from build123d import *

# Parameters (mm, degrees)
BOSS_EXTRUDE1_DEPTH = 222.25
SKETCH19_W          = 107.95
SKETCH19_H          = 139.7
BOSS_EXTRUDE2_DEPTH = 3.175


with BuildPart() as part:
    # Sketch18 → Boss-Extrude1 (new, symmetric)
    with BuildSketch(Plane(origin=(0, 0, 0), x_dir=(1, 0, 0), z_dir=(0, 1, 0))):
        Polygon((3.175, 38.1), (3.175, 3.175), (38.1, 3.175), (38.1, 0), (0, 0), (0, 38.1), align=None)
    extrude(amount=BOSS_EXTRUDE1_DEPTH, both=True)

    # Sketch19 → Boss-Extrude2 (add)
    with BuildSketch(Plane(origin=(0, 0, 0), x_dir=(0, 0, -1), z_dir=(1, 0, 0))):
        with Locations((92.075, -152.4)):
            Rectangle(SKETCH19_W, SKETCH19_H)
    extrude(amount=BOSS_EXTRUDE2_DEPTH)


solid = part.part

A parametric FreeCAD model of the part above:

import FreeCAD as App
import Part
import Sketcher

V = App.Vector
Q = App.Units.Quantity


def add_polygon(sketch, points):
    """Adds a closed chain of lines whose ends are joined by coincident constraints."""
    first, n = sketch.GeometryCount, len(points)
    for a, b in zip(points, points[1:] + points[:1]):
        sketch.addGeometry(Part.LineSegment(App.Vector(*a, 0), App.Vector(*b, 0)), False)
    for i in range(n):
        sketch.addConstraint(Sketcher.Constraint("Coincident", first + i, 2, first + (i + 1) % n, 1))

doc = App.newDocument("Part")
params = doc.addObject("Spreadsheet::Sheet", "Params")
for row, (alias, value) in enumerate([
    ("sketch1_width", "1.5 in"),
    ("sketch1_width2", "0.125 in"),
    ("pad1_length", "17.5 in"),
    ("sketch2_width", "5.5 in"),
    ("sketch2_height", "4.25 in"),
    ("pad2_length", "0.125 in"),
], start=1):
    params.set(f"A{row}", alias)
    params.set(f"B{row}", "=" + value)
    params.setAlias(f"B{row}", alias)

body = doc.addObject("PartDesign::Body", "Body")

sketch1 = body.newObject("Sketcher::SketchObject", "Sketch")
sketch1.AttachmentSupport = (doc.getObject("XZ_Plane"), [""])
sketch1.MapMode = "FlatFace"
add_polygon(sketch1, [(3.175, -3.175), (3.175, -38.1), (0, -38.1), (0, 0), (38.1, 0), (38.1, -3.175)])
sketch1.addConstraint([
    Sketcher.Constraint("Vertical", 0),
    Sketcher.Constraint("Horizontal", 1),
    Sketcher.Constraint("Vertical", 2),
    Sketcher.Constraint("Horizontal", 3),
    Sketcher.Constraint("Vertical", 4),
    Sketcher.Constraint("Horizontal", 5),
    Sketcher.Constraint("Coincident", 2, 2, -1, 1),
    Sketcher.Constraint("Equal", 5, 0),
    Sketcher.Constraint("Equal", 3, 2),
    Sketcher.Constraint("DistanceX", 3, 1, 3, 2, Q("1.5 in")),
    Sketcher.Constraint("DistanceX", 1, 2, 1, 1, Q("0.125 in")),
])
sketch1.setExpression("Constraints[15]", "Params.sketch1_width")
sketch1.setExpression("Constraints[16]", "Params.sketch1_width2")
pad1 = body.newObject("PartDesign::Pad", "Pad")
pad1.Profile = sketch1
pad1.setExpression("Length", "Params.pad1_length")
pad1.Midplane = True

sketch2 = body.newObject("Sketcher::SketchObject", "Sketch001")
sketch2.AttachmentSupport = (doc.getObject("YZ_Plane"), [""])
sketch2.MapMode = "FlatFace"
add_polygon(sketch2, [(-82.55, -38.1), (-222.25, -38.1), (-222.25, -146.05), (-82.55, -146.05)])
sketch2.addConstraint([
    Sketcher.Constraint("Horizontal", 0),
    Sketcher.Constraint("Vertical", 1),
    Sketcher.Constraint("Horizontal", 2),
    Sketcher.Constraint("Vertical", 3),
    Sketcher.Constraint("DistanceX", 0, 2, 0, 1, Q("5.5 in")),
    Sketcher.Constraint("DistanceY", 1, 2, 1, 1, Q("4.25 in")),
    Sketcher.Constraint("DistanceY", 0, 2, -1, 1, Q("1.5 in")),
    Sketcher.Constraint("DistanceX", 0, 2, -1, 1, Q("8.75 in")),
])
sketch2.setExpression("Constraints[8]", "Params.sketch2_width")
sketch2.setExpression("Constraints[9]", "Params.sketch2_height")
pad2 = body.newObject("PartDesign::Pad", "Pad001")
pad2.Profile = sketch2
pad2.setExpression("Length", "Params.pad2_length")

doc.recompute()
